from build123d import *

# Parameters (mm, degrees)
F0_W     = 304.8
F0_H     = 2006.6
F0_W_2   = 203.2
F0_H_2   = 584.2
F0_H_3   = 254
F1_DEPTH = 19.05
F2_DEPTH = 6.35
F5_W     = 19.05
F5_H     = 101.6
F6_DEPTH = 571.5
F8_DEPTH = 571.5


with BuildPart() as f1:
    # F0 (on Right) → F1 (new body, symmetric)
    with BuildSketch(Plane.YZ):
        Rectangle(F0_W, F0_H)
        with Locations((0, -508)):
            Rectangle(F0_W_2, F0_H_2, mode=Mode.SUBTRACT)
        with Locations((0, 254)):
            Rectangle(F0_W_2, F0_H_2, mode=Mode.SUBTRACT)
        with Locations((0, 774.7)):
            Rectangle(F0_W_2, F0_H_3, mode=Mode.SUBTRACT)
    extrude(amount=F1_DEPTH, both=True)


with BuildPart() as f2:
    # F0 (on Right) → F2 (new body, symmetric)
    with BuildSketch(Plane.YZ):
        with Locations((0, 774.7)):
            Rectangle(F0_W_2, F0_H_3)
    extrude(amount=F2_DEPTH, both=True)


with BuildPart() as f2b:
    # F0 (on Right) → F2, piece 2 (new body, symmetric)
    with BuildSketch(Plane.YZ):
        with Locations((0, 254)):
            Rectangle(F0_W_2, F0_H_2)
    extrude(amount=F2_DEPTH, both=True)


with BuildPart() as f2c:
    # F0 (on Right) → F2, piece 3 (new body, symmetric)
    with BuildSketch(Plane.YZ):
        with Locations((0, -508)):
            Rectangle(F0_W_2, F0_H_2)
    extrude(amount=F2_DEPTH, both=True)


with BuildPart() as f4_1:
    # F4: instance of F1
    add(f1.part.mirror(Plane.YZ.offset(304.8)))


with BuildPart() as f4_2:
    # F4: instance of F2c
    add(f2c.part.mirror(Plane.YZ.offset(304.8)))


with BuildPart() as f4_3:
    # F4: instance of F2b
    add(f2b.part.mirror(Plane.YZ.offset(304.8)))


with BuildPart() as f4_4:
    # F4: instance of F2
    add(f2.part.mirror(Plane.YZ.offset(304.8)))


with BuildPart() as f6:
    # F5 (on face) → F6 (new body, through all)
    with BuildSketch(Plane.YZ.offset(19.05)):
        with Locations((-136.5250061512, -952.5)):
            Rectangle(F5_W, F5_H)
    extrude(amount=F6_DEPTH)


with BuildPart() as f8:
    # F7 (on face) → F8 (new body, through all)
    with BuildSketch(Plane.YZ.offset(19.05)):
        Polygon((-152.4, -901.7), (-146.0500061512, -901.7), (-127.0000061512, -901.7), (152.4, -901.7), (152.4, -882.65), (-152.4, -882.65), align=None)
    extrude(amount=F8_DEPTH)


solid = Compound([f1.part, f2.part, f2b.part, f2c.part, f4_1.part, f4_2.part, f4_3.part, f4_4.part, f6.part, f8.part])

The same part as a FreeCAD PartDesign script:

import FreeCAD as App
import Part
import Sketcher

V = App.Vector
Q = App.Units.Quantity

doc = App.newDocument("Part")
body = doc.addObject("PartDesign::Body", "Body")

# Sketch on YZ plane
sketch1 = body.newObject("Sketcher::SketchObject", "Sketch")
sketch1.AttachmentSupport = (doc.getObject("YZ_Plane"), [""])
sketch1.MapMode = "FlatFace"
sketch1.addGeometry(Part.LineSegment(V(-152.4, 1003.3, 0), V(-152.4, -1003.3, 0)), False)
sketch1.addGeometry(Part.LineSegment(V(-152.4, -1003.3, 0), V(152.4, -1003.3, 0)), False)
sketch1.addGeometry(Part.LineSegment(V(152.4, -1003.3, 0), V(152.4, 1003.3, 0)), False)
sketch1.addGeometry(Part.LineSegment(V(152.4, 1003.3, 0), V(-152.4, 1003.3, 0)), False)
sketch1.addGeometry(Part.LineSegment(V(101.6, -800.1, 0), V(-101.6, -800.1, 0)), False)
sketch1.addGeometry(Part.LineSegment(V(-101.6, -800.1, 0), V(-101.6, -215.9, 0)), False)
sketch1.addGeometry(Part.LineSegment(V(-101.6, -215.9, 0), V(101.6, -215.9, 0)), False)
sketch1.addGeometry(Part.LineSegment(V(101.6, -215.9, 0), V(101.6, -800.1, 0)), False)
sketch1.addGeometry(Part.LineSegment(V(101.6, -38.1, 0), V(-101.6, -38.1, 0)), False)
sketch1.addGeometry(Part.LineSegment(V(-101.6, -38.1, 0), V(-101.6, 546.1, 0)), False)
sketch1.addGeometry(Part.LineSegment(V(-101.6, 546.1, 0), V(101.6, 546.1, 0)), False)
sketch1.addGeometry(Part.LineSegment(V(101.6, 546.1, 0), V(101.6, -38.1, 0)), False)
sketch1.addGeometry(Part.LineSegment(V(101.6, 647.7, 0), V(-101.6, 647.7, 0)), False)
sketch1.addGeometry(Part.LineSegment(V(-101.6, 647.7, 0), V(-101.6, 901.7, 0)), False)
sketch1.addGeometry(Part.LineSegment(V(-101.6, 901.7, 0), V(101.6, 901.7, 0)), False)
sketch1.addGeometry(Part.LineSegment(V(101.6, 901.7, 0), V(101.6, 647.7, 0)), False)
sketch1.addConstraint(Sketcher.Constraint("Coincident", 0, 2, 1, 1))
sketch1.addConstraint(Sketcher.Constraint("Coincident", 1, 2, 2, 1))
sketch1.addConstraint(Sketcher.Constraint("Coincident", 2, 2, 3, 1))
sketch1.addConstraint(Sketcher.Constraint("Coincident", 3, 2, 0, 1))
sketch1.addConstraint(Sketcher.Constraint("Coincident", 4, 2, 5, 1))
sketch1.addConstraint(Sketcher.Constraint("Coincident", 5, 2, 6, 1))
sketch1.addConstraint(Sketcher.Constraint("Coincident", 6, 2, 7, 1))
sketch1.addConstraint(Sketcher.Constraint("Coincident", 7, 2, 4, 1))
sketch1.addConstraint(Sketcher.Constraint("Coincident", 8, 2, 9, 1))
sketch1.addConstraint(Sketcher.Constraint("Coincident", 9, 2, 10, 1))
sketch1.addConstraint(Sketcher.Constraint("Coincident", 10, 2, 11, 1))
sketch1.addConstraint(Sketcher.Constraint("Coincident", 11, 2, 8, 1))
sketch1.addConstraint(Sketcher.Constraint("Coincident", 12, 2, 13, 1))
sketch1.addConstraint(Sketcher.Constraint("Coincident", 13, 2, 14, 1))
sketch1.addConstraint(Sketcher.Constraint("Coincident", 14, 2, 15, 1))
sketch1.addConstraint(Sketcher.Constraint("Coincident", 15, 2, 12, 1))
sketch1.addConstraint(Sketcher.Constraint("Vertical", 0))
sketch1.addConstraint(Sketcher.Constraint("Horizontal", 1))
sketch1.addConstraint(Sketcher.Constraint("Vertical", 2))
sketch1.addConstraint(Sketcher.Constraint("Horizontal", 3))
sketch1.addConstraint(Sketcher.Constraint("Horizontal", 4))
sketch1.addConstraint(Sketcher.Constraint("Vertical", 5))
sketch1.addConstraint(Sketcher.Constraint("Horizontal", 6))
sketch1.addConstraint(Sketcher.Constraint("Vertical", 7))
sketch1.addConstraint(Sketcher.Constraint("Horizontal", 8))
sketch1.addConstraint(Sketcher.Constraint("Vertical", 9))
sketch1.addConstraint(Sketcher.Constraint("Horizontal", 10))
sketch1.addConstraint(Sketcher.Constraint("Vertical", 11))
sketch1.addConstraint(Sketcher.Constraint("Horizontal", 12))
sketch1.addConstraint(Sketcher.Constraint("Vertical", 13))
sketch1.addConstraint(Sketcher.Constraint("Horizontal", 14))
sketch1.addConstraint(Sketcher.Constraint("Vertical", 15))
sketch1.addConstraint(Sketcher.Constraint("Symmetric", 0, 2, 2, 2, -1, 1))
sketch1.addConstraint(Sketcher.Constraint("Vertical", 5, 2, 8, 2))
sketch1.addConstraint(Sketcher.Constraint("Vertical", 7, 2, 10, 2))
sketch1.addConstraint(Sketcher.Constraint("Vertical", 9, 2, 12, 2))
sketch1.addConstraint(Sketcher.Constraint("Vertical", 11, 2, 14, 2))
sketch1.addConstraint(Sketcher.Constraint("Equal", 7, 9))
sketch1.addConstraint(Sketcher.Constraint("DistanceX", 1, 1, 1, 2, Q("12 in")))
sketch1.addConstraint(Sketcher.Constraint("DistanceX", 4, 2, 4, 1, Q("8 in")))
sketch1.addConstraint(Sketcher.Constraint("DistanceY", 0, 2, 0, 1, Q("79 in")))
sketch1.addConstraint(Sketcher.Constraint("DistanceY", 5, 1, 5, 2, Q("23 in")))
sketch1.addConstraint(Sketcher.Constraint("DistanceY", 13, 1, 13, 2, Q("10 in")))
sketch1.addConstraint(Sketcher.Constraint("DistanceX", 4, 2, -1, 1, Q("4 in")))
sketch1.addConstraint(Sketcher.Constraint("DistanceY", 0, 2, 4, 2, Q("8 in")))
sketch1.addConstraint(Sketcher.Constraint("DistanceY", 5, 2, 8, 2, Q("7 in")))
sketch1.addConstraint(Sketcher.Constraint("DistanceY", 9, 2, 12, 2, Q("4 in")))
pad1 = body.newObject("PartDesign::Pad", "Pad")
pad1.Profile = sketch1
pad1.Length = Q("1.5 in")
pad1.Midplane = True
body2 = doc.addObject("PartDesign::Body", "Body001")

# Sketch on YZ plane
sketch2 = body2.newObject("Sketcher::SketchObject", "Sketch001")
sketch2.AttachmentSupport = (doc.getObject("YZ_Plane001"), [""])
sketch2.MapMode = "FlatFace"
sketch2.addGeometry(Part.LineSegment(V(-101.6, 901.7, 0), V(-101.6, 647.7, 0)), False)
sketch2.addGeometry(Part.LineSegment(V(-101.6, 647.7, 0), V(101.6, 647.7, 0)), False)
sketch2.addGeometry(Part.LineSegment(V(101.6, 647.7, 0), V(101.6, 901.7, 0)), False)
sketch2.addGeometry(Part.LineSegment(V(101.6, 901.7, 0), V(-101.6, 901.7, 0)), False)
sketch2.addConstraint(Sketcher.Constraint("Coincident", 0, 2, 1, 1))
sketch2.addConstraint(Sketcher.Constraint("Coincident", 1, 2, 2, 1))
sketch2.addConstraint(Sketcher.Constraint("Coincident", 2, 2, 3, 1))
sketch2.addConstraint(Sketcher.Constraint("Coincident", 3, 2, 0, 1))
sketch2.addConstraint(Sketcher.Constraint("Vertical", 0))
sketch2.addConstraint(Sketcher.Constraint("Horizontal", 1))
sketch2.addConstraint(Sketcher.Constraint("Vertical", 2))
sketch2.addConstraint(Sketcher.Constraint("Horizontal", 3))
sketch2.addConstraint(Sketcher.Constraint("DistanceX", 1, 1, 1, 2, Q("8 in")))
sketch2.addConstraint(Sketcher.Constraint("DistanceY", 0, 2, 0, 1, Q("10 in")))
sketch2.addConstraint(Sketcher.Constraint("DistanceX", 0, 2, -1, 1, Q("4 in")))
sketch2.addConstraint(Sketcher.Constraint("DistanceY", -1, 1, 0, 2, Q("25.5 in")))
pad2 = body2.newObject("PartDesign::Pad", "Pad001")
pad2.Profile = sketch2
pad2.Length = Q("0.5 in")
pad2.Midplane = True
body3 = doc.addObject("PartDesign::Body", "Body002")

# Sketch on YZ plane
sketch3 = body3.newObject("Sketcher::SketchObject", "Sketch002")
sketch3.AttachmentSupport = (doc.getObject("YZ_Plane002"), [""])
sketch3.MapMode = "FlatFace"
sketch3.addGeometry(Part.LineSegment(V(-101.6, 546.1, 0), V(-101.6, -38.1, 0)), False)
sketch3.addGeometry(Part.LineSegment(V(-101.6, -38.1, 0), V(101.6, -38.1, 0)), False)
sketch3.addGeometry(Part.LineSegment(V(101.6, -38.1, 0), V(101.6, 546.1, 0)), False)
sketch3.addGeometry(Part.LineSegment(V(101.6, 546.1, 0), V(-101.6, 546.1, 0)), False)
sketch3.addConstraint(Sketcher.Constraint("Coincident", 0, 2, 1, 1))
sketch3.addConstraint(Sketcher.Constraint("Coincident", 1, 2, 2, 1))
sketch3.addConstraint(Sketcher.Constraint("Coincident", 2, 2, 3, 1))
sketch3.addConstraint(Sketcher.Constraint("Coincident", 3, 2, 0, 1))
sketch3.addConstraint(Sketcher.Constraint("Vertical", 0))
sketch3.addConstraint(Sketcher.Constraint("Horizontal", 1))
sketch3.addConstraint(Sketcher.Constraint("Vertical", 2))
sketch3.addConstraint(Sketcher.Constraint("Horizontal", 3))
sketch3.addConstraint(Sketcher.Constraint("DistanceX", 1, 1, 1, 2, Q("8 in")))
sketch3.addConstraint(Sketcher.Constraint("DistanceY", 0, 2, 0, 1, Q("23 in")))
sketch3.addConstraint(Sketcher.Constraint("DistanceX", 0, 2, -1, 1, Q("4 in")))
sketch3.addConstraint(Sketcher.Constraint("DistanceY", 0, 2, -1, 1, Q("1.5 in")))
pad3 = body3.newObject("PartDesign::Pad", "Pad002")
pad3.Profile = sketch3
pad3.Length = Q("0.5 in")
pad3.Midplane = True
body4 = doc.addObject("PartDesign::Body", "Body003")

# Sketch on YZ plane
sketch4 = body4.newObject("Sketcher::SketchObject", "Sketch003")
sketch4.AttachmentSupport = (doc.getObject("YZ_Plane003"), [""])
sketch4.MapMode = "FlatFace"
sketch4.addGeometry(Part.LineSegment(V(-101.6, -215.9, 0), V(-101.6, -800.1, 0)), False)
sketch4.addGeometry(Part.LineSegment(V(-101.6, -800.1, 0), V(101.6, -800.1, 0)), False)
sketch4.addGeometry(Part.LineSegment(V(101.6, -800.1, 0), V(101.6, -215.9, 0)), False)
sketch4.addGeometry(Part.LineSegment(V(101.6, -215.9, 0), V(-101.6, -215.9, 0)), False)
sketch4.addConstraint(Sketcher.Constraint("Coincident", 0, 2, 1, 1))
sketch4.addConstraint(Sketcher.Constraint("Coincident", 1, 2, 2, 1))
sketch4.addConstraint(Sketcher.Constraint("Coincident", 2, 2, 3, 1))
sketch4.addConstraint(Sketcher.Constraint("Coincident", 3, 2, 0, 1))
sketch4.addConstraint(Sketcher.Constraint("Vertical", 0))
sketch4.addConstraint(Sketcher.Constraint("Horizontal", 1))
sketch4.addConstraint(Sketcher.Constraint("Vertical", 2))
sketch4.addConstraint(Sketcher.Constraint("Horizontal", 3))
sketch4.addConstraint(Sketcher.Constraint("DistanceX", 1, 1, 1, 2, Q("8 in")))
sketch4.addConstraint(Sketcher.Constraint("DistanceY", 0, 2, 0, 1, Q("23 in")))
sketch4.addConstraint(Sketcher.Constraint("DistanceX", 0, 2, -1, 1, Q("4 in")))
sketch4.addConstraint(Sketcher.Constraint("DistanceY", 0, 2, -1, 1, Q("31.5 in")))
pad4 = body4.newObject("PartDesign::Pad", "Pad003")
pad4.Profile = sketch4
pad4.Length = Q("0.5 in")
pad4.Midplane = True
body5 = doc.addObject("PartDesign::Body", "Body004")
doc.recompute()

mirroring = doc.addObject("Part::Mirroring", "Mirroring")
mirroring.Source = body
mirroring.Base = V(304.8, 0, 0)
mirroring.Normal = V(1, 0, 0)
body5.BaseFeature = mirroring
doc.recompute()
body6 = doc.addObject("PartDesign::Body", "Body005")
doc.recompute()

mirroring2 = doc.addObject("Part::Mirroring", "Mirroring001")
mirroring2.Source = body4
mirroring2.Base = V(304.8, 0, 0)
mirroring2.Normal = V(1, 0, 0)
body6.BaseFeature = mirroring2
doc.recompute()
body7 = doc.addObject("PartDesign::Body", "Body006")
doc.recompute()

mirroring3 = doc.addObject("Part::Mirroring", "Mirroring002")
mirroring3.Source = body3
mirroring3.Base = V(304.8, 0, 0)
mirroring3.Normal = V(1, 0, 0)
body7.BaseFeature = mirroring3
doc.recompute()
body8 = doc.addObject("PartDesign::Body", "Body007")
doc.recompute()

mirroring4 = doc.addObject("Part::Mirroring", "Mirroring003")
mirroring4.Source = body2
mirroring4.Base = V(304.8, 0, 0)
mirroring4.Normal = V(1, 0, 0)
body8.BaseFeature = mirroring4
doc.recompute()
body9 = doc.addObject("PartDesign::Body", "Body008")

# Sketch on YZ plane
sketch5 = body9.newObject("Sketcher::SketchObject", "Sketch004")
sketch5.AttachmentSupport = (doc.getObject("YZ_Plane008"), [""])
sketch5.MapMode = "FlatFace"
sketch5.AttachmentOffset = App.Placement(V(0, 0, 0.75 * 25.4), App.Rotation())
sketch5.addGeometry(Part.LineSegment(V(-146.050006, -901.7, 0), V(-146.050006, -1003.3, 0)), False)
sketch5.addGeometry(Part.LineSegment(V(-146.050006, -1003.3, 0), V(-127.000006, -1003.3, 0)), False)
sketch5.addGeometry(Part.LineSegment(V(-127.000006, -1003.3, 0), V(-127.000006, -901.7, 0)), False)
sketch5.addGeometry(Part.LineSegment(V(-127.000006, -901.7, 0), V(-146.050006, -901.7, 0)), False)
sketch5.addConstraint(Sketcher.Constraint("Coincident", 0, 2, 1, 1))
sketch5.addConstraint(Sketcher.Constraint("Coincident", 1, 2, 2, 1))
sketch5.addConstraint(Sketcher.Constraint("Coincident", 2, 2, 3, 1))
sketch5.addConstraint(Sketcher.Constraint("Coincident", 3, 2, 0, 1))
sketch5.addConstraint(Sketcher.Constraint("Vertical", 0))
sketch5.addConstraint(Sketcher.Constraint("Horizontal", 1))
sketch5.addConstraint(Sketcher.Constraint("Vertical", 2))
sketch5.addConstraint(Sketcher.Constraint("Horizontal", 3))
sketch5.addConstraint(Sketcher.Constraint("DistanceY", 0, 2, 0, 1, Q("4 in")))
sketch5.addConstraint(Sketcher.Constraint("DistanceX", 1, 1, 1, 2, Q("0.75 in")))
sketch5.addConstraint(Sketcher.Constraint("DistanceY", 0, 2, -1, 1, Q("39.5 in")))
sketch5.addConstraint(Sketcher.Constraint("DistanceX", 0, 2, -1, 1, Q("146.050006 mm")))
pad5 = body9.newObject("PartDesign::Pad", "Pad004")
pad5.Profile = sketch5
pad5.Length = Q("22.5 in")
body10 = doc.addObject("PartDesign::Body", "Body009")

# Sketch on YZ plane
sketch6 = body10.newObject("Sketcher::SketchObject", "Sketch005")
sketch6.AttachmentSupport = (doc.getObject("YZ_Plane009"), [""])
sketch6.MapMode = "FlatFace"
sketch6.AttachmentOffset = App.Placement(V(0, 0, 0.75 * 25.4), App.Rotation())
sketch6.addGeometry(Part.LineSegment(V(-152.4, -901.7, 0), V(152.4, -901.7, 0)), False)
sketch6.addGeometry(Part.LineSegment(V(152.4, -901.7, 0), V(152.4, -882.65, 0)), False)
sketch6.addGeometry(Part.LineSegment(V(152.4, -882.65, 0), V(-152.4, -882.65, 0)), False)
sketch6.addGeometry(Part.LineSegment(V(-152.4, -882.65, 0), V(-152.4, -901.7, 0)), False)
sketch6.addConstraint(Sketcher.Constraint("Coincident", 0, 2, 1, 1))
sketch6.addConstraint(Sketcher.Constraint("Coincident", 1, 2, 2, 1))
sketch6.addConstraint(Sketcher.Constraint("Coincident", 2, 2, 3, 1))
sketch6.addConstraint(Sketcher.Constraint("Coincident", 3, 2, 0, 1))
sketch6.addConstraint(Sketcher.Constraint("Horizontal", 0))
sketch6.addConstraint(Sketcher.Constraint("Vertical", 1))
sketch6.addConstraint(Sketcher.Constraint("Horizontal", 2))
sketch6.addConstraint(Sketcher.Constraint("Vertical", 3))
sketch6.addConstraint(Sketcher.Constraint("DistanceX", 0, 1, 0, 2, Q("12 in")))
sketch6.addConstraint(Sketcher.Constraint("DistanceX", -1, 1, 0, 2, Q("6 in")))
sketch6.addConstraint(Sketcher.Constraint("DistanceY", 1, 1, 1, 2, Q("0.75 in")))
sketch6.addConstraint(Sketcher.Constraint("DistanceY", 0, 2, -1, 1, Q("35.5 in")))
pad6 = body10.newObject("PartDesign::Pad", "Pad005")
pad6.Profile = sketch6
pad6.Length = Q("22.5 in")
mirroring.Visibility = False
mirroring2.Visibility = False
mirroring3.Visibility = False
mirroring4.Visibility = False

doc.recompute()
